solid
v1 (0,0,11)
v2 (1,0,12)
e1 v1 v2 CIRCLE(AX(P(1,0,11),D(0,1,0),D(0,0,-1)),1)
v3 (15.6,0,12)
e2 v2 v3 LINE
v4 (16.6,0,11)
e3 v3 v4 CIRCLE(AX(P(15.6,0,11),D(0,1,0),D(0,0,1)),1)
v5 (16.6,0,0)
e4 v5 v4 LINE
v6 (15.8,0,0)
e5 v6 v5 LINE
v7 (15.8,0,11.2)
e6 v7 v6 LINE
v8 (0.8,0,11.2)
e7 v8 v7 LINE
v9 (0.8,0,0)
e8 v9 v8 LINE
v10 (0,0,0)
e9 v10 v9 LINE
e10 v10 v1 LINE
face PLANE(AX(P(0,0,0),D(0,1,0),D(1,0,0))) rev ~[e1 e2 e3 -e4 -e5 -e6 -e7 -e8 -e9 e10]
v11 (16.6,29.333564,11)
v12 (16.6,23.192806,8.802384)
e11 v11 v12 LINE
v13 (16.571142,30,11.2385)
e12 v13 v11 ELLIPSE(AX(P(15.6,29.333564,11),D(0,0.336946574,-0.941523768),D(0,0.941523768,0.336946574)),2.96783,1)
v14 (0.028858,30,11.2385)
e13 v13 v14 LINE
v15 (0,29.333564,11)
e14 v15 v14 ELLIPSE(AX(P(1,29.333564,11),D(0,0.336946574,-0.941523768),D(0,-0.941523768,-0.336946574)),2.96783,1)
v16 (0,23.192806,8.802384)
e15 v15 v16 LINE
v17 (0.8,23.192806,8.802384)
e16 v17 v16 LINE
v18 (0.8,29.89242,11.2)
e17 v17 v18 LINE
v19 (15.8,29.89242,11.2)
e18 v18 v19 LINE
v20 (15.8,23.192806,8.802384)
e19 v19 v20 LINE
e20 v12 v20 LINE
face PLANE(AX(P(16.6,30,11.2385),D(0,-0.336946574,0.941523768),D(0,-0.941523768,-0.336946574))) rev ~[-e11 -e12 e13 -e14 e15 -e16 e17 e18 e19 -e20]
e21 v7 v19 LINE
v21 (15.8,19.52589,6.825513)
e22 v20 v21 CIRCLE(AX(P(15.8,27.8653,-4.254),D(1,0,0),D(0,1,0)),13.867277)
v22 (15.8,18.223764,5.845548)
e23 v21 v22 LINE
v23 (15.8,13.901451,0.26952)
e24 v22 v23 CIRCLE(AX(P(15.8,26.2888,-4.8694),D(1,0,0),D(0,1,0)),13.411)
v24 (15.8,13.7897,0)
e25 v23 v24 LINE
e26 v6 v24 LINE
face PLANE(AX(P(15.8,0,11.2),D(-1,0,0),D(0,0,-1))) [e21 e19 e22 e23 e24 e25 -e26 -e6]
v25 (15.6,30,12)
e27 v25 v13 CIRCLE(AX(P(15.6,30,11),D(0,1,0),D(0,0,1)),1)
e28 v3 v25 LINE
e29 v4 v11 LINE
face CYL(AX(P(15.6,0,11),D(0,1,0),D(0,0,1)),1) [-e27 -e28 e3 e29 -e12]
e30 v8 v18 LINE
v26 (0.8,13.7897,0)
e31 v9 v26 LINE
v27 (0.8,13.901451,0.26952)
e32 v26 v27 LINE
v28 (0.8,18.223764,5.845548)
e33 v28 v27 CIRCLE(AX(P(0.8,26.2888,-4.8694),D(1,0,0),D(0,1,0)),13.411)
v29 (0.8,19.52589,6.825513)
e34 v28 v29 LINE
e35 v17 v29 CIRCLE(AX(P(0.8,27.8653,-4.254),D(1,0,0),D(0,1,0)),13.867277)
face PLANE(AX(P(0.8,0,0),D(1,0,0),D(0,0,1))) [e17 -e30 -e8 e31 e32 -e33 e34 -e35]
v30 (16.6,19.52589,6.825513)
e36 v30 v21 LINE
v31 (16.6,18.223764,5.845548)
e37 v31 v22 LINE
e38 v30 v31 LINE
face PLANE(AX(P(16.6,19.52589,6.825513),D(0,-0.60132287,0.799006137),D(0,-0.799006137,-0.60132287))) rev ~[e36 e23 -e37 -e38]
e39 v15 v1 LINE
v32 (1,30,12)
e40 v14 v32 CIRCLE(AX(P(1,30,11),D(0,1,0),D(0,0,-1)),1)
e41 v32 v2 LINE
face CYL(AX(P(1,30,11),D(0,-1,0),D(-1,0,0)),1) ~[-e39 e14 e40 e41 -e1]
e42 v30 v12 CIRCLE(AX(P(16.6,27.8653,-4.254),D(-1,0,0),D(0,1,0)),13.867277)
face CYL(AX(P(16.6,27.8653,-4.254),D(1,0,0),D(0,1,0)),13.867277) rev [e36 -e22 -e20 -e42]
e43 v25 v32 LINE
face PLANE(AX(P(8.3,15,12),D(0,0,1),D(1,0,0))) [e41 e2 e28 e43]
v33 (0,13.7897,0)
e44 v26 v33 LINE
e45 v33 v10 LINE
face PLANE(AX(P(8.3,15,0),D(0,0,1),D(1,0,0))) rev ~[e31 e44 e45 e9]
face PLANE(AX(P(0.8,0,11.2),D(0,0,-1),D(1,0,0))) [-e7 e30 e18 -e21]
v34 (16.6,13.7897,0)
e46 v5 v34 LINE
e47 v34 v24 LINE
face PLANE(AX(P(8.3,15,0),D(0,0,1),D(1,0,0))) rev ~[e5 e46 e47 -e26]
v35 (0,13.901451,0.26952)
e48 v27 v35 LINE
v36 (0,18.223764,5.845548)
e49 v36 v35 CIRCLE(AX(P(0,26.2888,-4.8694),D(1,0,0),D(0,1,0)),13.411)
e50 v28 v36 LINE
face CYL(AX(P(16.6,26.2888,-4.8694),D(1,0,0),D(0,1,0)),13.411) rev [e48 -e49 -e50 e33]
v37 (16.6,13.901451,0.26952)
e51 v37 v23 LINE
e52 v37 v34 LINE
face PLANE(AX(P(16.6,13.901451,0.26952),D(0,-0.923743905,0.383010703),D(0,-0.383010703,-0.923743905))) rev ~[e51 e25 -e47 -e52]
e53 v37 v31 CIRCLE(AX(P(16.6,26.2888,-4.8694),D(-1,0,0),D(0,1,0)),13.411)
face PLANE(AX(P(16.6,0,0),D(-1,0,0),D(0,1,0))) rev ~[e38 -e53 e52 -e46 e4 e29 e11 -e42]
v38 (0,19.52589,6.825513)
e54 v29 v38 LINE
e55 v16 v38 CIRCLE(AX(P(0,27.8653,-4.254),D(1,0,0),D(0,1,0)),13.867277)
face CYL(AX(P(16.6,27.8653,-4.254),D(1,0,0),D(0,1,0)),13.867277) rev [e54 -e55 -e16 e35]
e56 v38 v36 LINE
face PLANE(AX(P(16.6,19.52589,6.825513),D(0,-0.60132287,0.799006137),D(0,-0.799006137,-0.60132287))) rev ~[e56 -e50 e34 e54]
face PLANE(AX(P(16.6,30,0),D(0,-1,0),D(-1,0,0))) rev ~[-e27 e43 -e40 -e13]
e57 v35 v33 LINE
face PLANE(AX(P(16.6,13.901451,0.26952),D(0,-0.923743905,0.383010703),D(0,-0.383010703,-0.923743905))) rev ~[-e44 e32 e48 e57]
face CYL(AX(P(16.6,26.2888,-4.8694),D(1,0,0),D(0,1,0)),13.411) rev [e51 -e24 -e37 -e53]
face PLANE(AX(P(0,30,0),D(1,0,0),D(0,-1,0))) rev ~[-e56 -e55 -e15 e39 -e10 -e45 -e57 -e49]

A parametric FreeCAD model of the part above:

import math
import FreeCAD as App
import Part
import Sketcher

V = App.Vector
Q = App.Units.Quantity


def edges_at(feature, points):
    """Names of the edges that pass closest to the given points."""
    edges = feature.Shape.Edges
    near = lambda p: min(range(len(edges)), key=lambda i: edges[i].distToShape(Part.Vertex(*p))[0])
    return sorted({f"Edge{near(p) + 1}" for p in points})


def add_polygon(sketch, points):
    """Adds a closed chain of lines whose ends are joined by coincident constraints."""
    first, n = sketch.GeometryCount, len(points)
    for a, b in zip(points, points[1:] + points[:1]):
        sketch.addGeometry(Part.LineSegment(App.Vector(*a, 0), App.Vector(*b, 0)), False)
    for i in range(n):
        sketch.addConstraint(Sketcher.Constraint("Coincident", first + i, 2, first + (i + 1) % n, 1))

doc = App.newDocument("Part")
params = doc.addObject("Spreadsheet::Sheet", "Params")
for row, (alias, value) in enumerate([
    ("sketch1_height", "30 mm"),
    ("sketch1_width", "16.6 mm"),
    ("pad1_length", "12 mm"),
    ("sketch2_length", "7.23 mm"),
    ("pocket1_length", "87.395 mm"),
    ("sketch3_width", "15 mm"),
    ("sketch3_height", "11.2 mm"),
    ("pocket2_length", "100.7883 mm"),
    ("fillet_radius", "1 mm"),
], start=1):
    params.set(f"A{row}", alias)
    params.set(f"B{row}", "=" + value)
    params.setAlias(f"B{row}", alias)

body = doc.addObject("PartDesign::Body", "Body")

sketch1 = body.newObject("Sketcher::SketchObject", "Sketch")
sketch1.AttachmentSupport = (doc.getObject("XY_Plane"), [""])
sketch1.MapMode = "FlatFace"
add_polygon(sketch1, [(17, 0), (17, 30), (0, 30), (0, 0)])
sketch1.addConstraint(Sketcher.Constraint("Vertical", 0))
sketch1.addConstraint(Sketcher.Constraint("Horizontal", 1))
sketch1.addConstraint(Sketcher.Constraint("Vertical", 2))
sketch1.addConstraint(Sketcher.Constraint("Horizontal", 3))
sketch1.addConstraint(Sketcher.Constraint("Coincident", 2, 2, -1, 1))
sketch1.addConstraint(Sketcher.Constraint("DistanceY", 0, 1, 0, 2, Q("30 mm")))
sketch1.addConstraint(Sketcher.Constraint("DistanceX", 1, 2, 1, 1, Q("16.6 mm")))
sketch1.setExpression("Constraints[9]", "Params.sketch1_height")
sketch1.setExpression("Constraints[10]", "Params.sketch1_width")
pad1 = body.newObject("PartDesign::Pad", "Pad")
pad1.Profile = sketch1
pad1.setExpression("Length", "Params.pad1_length")

sketch2 = body.newObject("Sketcher::SketchObject", "Sketch001")
sketch2.AttachmentSupport = (doc.getObject("YZ_Plane"), [""])
sketch2.MapMode = "FlatFace"
sketch2.AttachmentOffset = App.Placement(V(0, 0, 16.6), App.Rotation())
sketch2.addGeometry(Part.ArcOfCircle(Part.Circle(V(27.87, -4.26, 0), V(0, 0, 1), 13.87), math.radians(109.69), math.radians(126.97)), False)
sketch2.addGeometry(Part.LineSegment(V(19.53, 6.83, 0), V(18.22, 5.85, 0)), False)
sketch2.addGeometry(Part.ArcOfCircle(Part.Circle(V(26.29, -4.87, 0), V(0, 0, 1), 13.41), math.radians(127), math.radians(157)), False)
sketch2.addGeometry(Part.LineSegment(V(13.9, 0.27, 0), V(13.79, 0, 0)), False)
sketch2.addGeometry(Part.LineSegment(V(13.79, 0, 0), V(30, 0, 0)), False)
sketch2.addGeometry(Part.LineSegment(V(30, 0, 0), V(30, 11.24, 0)), False)
sketch2.addGeometry(Part.LineSegment(V(30, 11.24, 0), V(23.19, 8.8, 0)), False)
sketch2.addConstraint(Sketcher.Constraint("Tangent", 0, 2, 1, 1))
sketch2.addConstraint(Sketcher.Constraint("Tangent", 1, 2, 2, 1))
sketch2.addConstraint(Sketcher.Constraint("Tangent", 2, 2, 3, 1))
sketch2.addConstraint(Sketcher.Constraint("Coincident", 3, 2, 4, 1))
sketch2.addConstraint(Sketcher.Constraint("Coincident", 4, 2, 5, 1))
sketch2.addConstraint(Sketcher.Constraint("Coincident", 5, 2, 6, 1))
sketch2.addConstraint(Sketcher.Constraint("Tangent", 6, 2, 0, 1))
sketch2.addConstraint(Sketcher.Constraint("Horizontal", 4))
sketch2.addConstraint(Sketcher.Constraint("Vertical", 5))
sketch2.addConstraint(Sketcher.Constraint("PointOnObject", 3, 2, -1))
sketch2.addConstraint(Sketcher.Constraint("DistanceX", -1, 1, 4, 2, Q("30 mm")))
sketch2.addConstraint(Sketcher.Constraint("Radius", 2, Q("13.411 mm")))
sketch2.addConstraint(Sketcher.Constraint("Angle", 3, Q("-112.5307 deg")))
sketch2.addConstraint(Sketcher.Constraint("Angle", 6, Q("-160.3092 deg")))
sketch2.addConstraint(Sketcher.Constraint("Radius", 0, Q("13.8687 mm")))
sketch2.addConstraint(Sketcher.Constraint("Distance", 6, Q("7.23 mm")))
sketch2.addConstraint(Sketcher.Constraint("DistanceY", 1, 2, 0, 2, Q("0.98 mm")))
sketch2.addConstraint(Sketcher.Constraint("DistanceX", 4, 1, 4, 2, Q("16.2103 mm")))
sketch2.addConstraint(Sketcher.Constraint("DistanceY", 5, 1, 5, 2, Q("11.2385 mm")))
sketch2.setExpression("Constraints[15]", "Params.sketch2_length")
pocket1 = body.newObject("PartDesign::Pocket", "Pocket")
pocket1.Profile = sketch2
pocket1.setExpression("Length", "Params.pocket1_length")

sketch3 = body.newObject("Sketcher::SketchObject", "Sketch002")
sketch3.AttachmentSupport = (doc.getObject("XZ_Plane"), [""])
sketch3.MapMode = "FlatFace"
add_polygon(sketch3, [(16, 0), (16, 11), (1, 11), (1, 0)])
sketch3.addConstraint(Sketcher.Constraint("Vertical", 0))
sketch3.addConstraint(Sketcher.Constraint("Horizontal", 1))
sketch3.addConstraint(Sketcher.Constraint("Vertical", 2))
sketch3.addConstraint(Sketcher.Constraint("Horizontal", 3))
sketch3.addConstraint(Sketcher.Constraint("PointOnObject", 2, 2, -1))
sketch3.addConstraint(Sketcher.Constraint("DistanceX", 1, 2, 1, 1, Q("15 mm")))
sketch3.addConstraint(Sketcher.Constraint("DistanceY", 0, 1, 0, 2, Q("11.2 mm")))
sketch3.addConstraint(Sketcher.Constraint("DistanceX", -1, 1, 0, 2, Q("15.8 mm")))
sketch3.setExpression("Constraints[9]", "Params.sketch3_width")
sketch3.setExpression("Constraints[10]", "Params.sketch3_height")
pocket2 = body.newObject("PartDesign::Pocket", "Pocket001")
pocket2.Profile = sketch3
pocket2.setExpression("Length", "Params.pocket2_length")
doc.recompute()

fillet = body.newObject("PartDesign::Fillet", "Fillet")
fillet.Base = (pocket2, edges_at(pocket2, [(0, 15, 12), (16.6, 15, 12)]))
fillet.setExpression("Radius", "Params.fillet_radius")

doc.recompute()
